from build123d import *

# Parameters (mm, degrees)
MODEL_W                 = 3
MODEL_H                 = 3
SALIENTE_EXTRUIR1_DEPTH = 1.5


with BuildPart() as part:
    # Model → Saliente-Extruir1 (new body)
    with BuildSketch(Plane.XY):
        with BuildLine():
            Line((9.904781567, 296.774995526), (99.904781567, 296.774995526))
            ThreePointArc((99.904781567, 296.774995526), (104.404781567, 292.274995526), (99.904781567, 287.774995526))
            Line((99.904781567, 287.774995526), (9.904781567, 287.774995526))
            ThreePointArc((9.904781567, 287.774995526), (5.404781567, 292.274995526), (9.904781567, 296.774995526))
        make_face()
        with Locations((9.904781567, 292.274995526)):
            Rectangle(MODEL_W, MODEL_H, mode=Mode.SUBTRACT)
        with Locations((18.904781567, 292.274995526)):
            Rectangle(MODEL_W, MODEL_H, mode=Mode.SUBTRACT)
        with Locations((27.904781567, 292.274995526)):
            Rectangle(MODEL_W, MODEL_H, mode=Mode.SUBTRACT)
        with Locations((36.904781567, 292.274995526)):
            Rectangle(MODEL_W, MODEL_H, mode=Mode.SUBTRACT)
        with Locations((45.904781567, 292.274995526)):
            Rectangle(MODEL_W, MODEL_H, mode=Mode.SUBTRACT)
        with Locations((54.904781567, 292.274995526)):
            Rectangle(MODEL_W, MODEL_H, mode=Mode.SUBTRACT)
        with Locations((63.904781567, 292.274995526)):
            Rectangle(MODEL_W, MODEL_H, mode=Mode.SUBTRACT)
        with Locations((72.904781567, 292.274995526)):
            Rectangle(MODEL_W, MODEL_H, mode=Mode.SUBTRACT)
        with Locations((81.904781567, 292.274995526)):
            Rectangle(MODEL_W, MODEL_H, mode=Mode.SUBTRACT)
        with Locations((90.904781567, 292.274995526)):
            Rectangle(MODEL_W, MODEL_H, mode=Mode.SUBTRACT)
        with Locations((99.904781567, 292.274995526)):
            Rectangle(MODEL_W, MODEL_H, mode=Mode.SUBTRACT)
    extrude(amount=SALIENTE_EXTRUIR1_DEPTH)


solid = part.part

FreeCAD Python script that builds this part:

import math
import FreeCAD as App
import Part
import Sketcher
from FreeCAD import Vector
Q = App.Units.Quantity


def add_polygon(sketch, points):
    """Adds a closed chain of lines whose ends are joined by coincident constraints."""
    first, n = sketch.GeometryCount, len(points)
    for a, b in zip(points, points[1:] + points[:1]):
        sketch.addGeometry(Part.LineSegment(App.Vector(*a, 0), App.Vector(*b, 0)), False)
    for i in range(n):
        sketch.addConstraint(Sketcher.Constraint("Coincident", first + i, 2, first + (i + 1) % n, 1))

doc = App.newDocument("Part")
params = doc.addObject("Spreadsheet::Sheet", "Params")
for row, (alias, value) in enumerate([
    ("sketch1_radius", "4.5 mm"),
    ("sketch1_width", "90 mm"),
    ("sketch1_width2", "3 mm"),
    ("pad1_length", "1.5 mm"),
], start=1):
    params.set(f"A{row}", alias)
    params.set(f"B{row}", "=" + value)
    params.setAlias(f"B{row}", alias)

body = doc.addObject("PartDesign::Body", "Body")

sketch1 = body.newObject("Sketcher::SketchObject", "Sketch")
sketch1.AttachmentSupport = (doc.getObject("XY_Plane"), [""])
sketch1.MapMode = "FlatFace"
sketch1.addGeometry(Part.LineSegment(Vector(99.9, 296.8, 0), Vector(9.9, 296.8, 0)), False)
sketch1.addGeometry(Part.ArcOfCircle(Part.Circle(Vector(9.9, 292.3, 0), Vector(0, 0, 1), 4.5), math.radians(90), math.radians(270)), False)
sketch1.addGeometry(Part.LineSegment(Vector(9.9, 287.8, 0), Vector(99.9, 287.8, 0)), False)
sketch1.addGeometry(Part.ArcOfCircle(Part.Circle(Vector(99.9, 292.3, 0), Vector(0, 0, 1), 4.5), math.radians(-90), math.radians(90)), False)
add_polygon(sketch1, [(98.4, 290.8), (98.4, 293.8), (101.4, 293.8), (101.4, 290.8)])
add_polygon(sketch1, [(89.4, 290.8), (89.4, 293.8), (92.4, 293.8), (92.4, 290.8)])
add_polygon(sketch1, [(80.4, 290.8), (80.4, 293.8), (83.4, 293.8), (83.4, 290.8)])
add_polygon(sketch1, [(71.4, 290.8), (71.4, 293.8), (74.4, 293.8), (74.4, 290.8)])
add_polygon(sketch1, [(62.4, 290.8), (62.4, 293.8), (65.4, 293.8), (65.4, 290.8)])
add_polygon(sketch1, [(53.4, 290.8), (53.4, 293.8), (56.4, 293.8), (56.4, 290.8)])
add_polygon(sketch1, [(44.4, 290.8), (44.4, 293.8), (47.4, 293.8), (47.4, 290.8)])
add_polygon(sketch1, [(35.4, 290.8), (35.4, 293.8), (38.4, 293.8), (38.4, 290.8)])
add_polygon(sketch1, [(26.4, 290.8), (26.4, 293.8), (29.4, 293.8), (29.4, 290.8)])
add_polygon(sketch1, [(17.4, 290.8), (17.4, 293.8), (20.4, 293.8), (20.4, 290.8)])
add_polygon(sketch1, [(8.4, 290.8), (8.4, 293.8), (11.4, 293.8), (11.4, 290.8)])
sketch1.addConstraint([
    Sketcher.Constraint("Tangent", 0, 2, 1, 1),
    Sketcher.Constraint("Tangent", 1, 2, 2, 1),
    Sketcher.Constraint("Tangent", 2, 2, 3, 1),
    Sketcher.Constraint("Tangent", 3, 2, 0, 1),
    Sketcher.Constraint("Horizontal", 0),
    Sketcher.Constraint("Horizontal", 2),
    Sketcher.Constraint("Vertical", 4),
    Sketcher.Constraint("Horizontal", 5),
    Sketcher.Constraint("Vertical", 6),
    Sketcher.Constraint("Horizontal", 7),
    Sketcher.Constraint("Vertical", 8),
    Sketcher.Constraint("Horizontal", 9),
    Sketcher.Constraint("Vertical", 10),
    Sketcher.Constraint("Horizontal", 11),
    Sketcher.Constraint("Vertical", 12),
    Sketcher.Constraint("Horizontal", 13),
    Sketcher.Constraint("Vertical", 14),
    Sketcher.Constraint("Horizontal", 15),
    Sketcher.Constraint("Vertical", 16),
    Sketcher.Constraint("Horizontal", 17),
    Sketcher.Constraint("Vertical", 18),
    Sketcher.Constraint("Horizontal", 19),
    Sketcher.Constraint("Vertical", 20),
    Sketcher.Constraint("Horizontal", 21),
    Sketcher.Constraint("Vertical", 22),
    Sketcher.Constraint("Horizontal", 23),
    Sketcher.Constraint("Vertical", 24),
    Sketcher.Constraint("Horizontal", 25),
    Sketcher.Constraint("Vertical", 26),
    Sketcher.Constraint("Horizontal", 27),
    Sketcher.Constraint("Vertical", 28),
    Sketcher.Constraint("Horizontal", 29),
    Sketcher.Constraint("Vertical", 30),
    Sketcher.Constraint("Horizontal", 31),
    Sketcher.Constraint("Vertical", 32),
    Sketcher.Constraint("Horizontal", 33),
    Sketcher.Constraint("Vertical", 34),
    Sketcher.Constraint("Horizontal", 35),
    Sketcher.Constraint("Vertical", 36),
    Sketcher.Constraint("Horizontal", 37),
    Sketcher.Constraint("Vertical", 38),
    Sketcher.Constraint("Horizontal", 39),
    Sketcher.Constraint("Vertical", 40),
    Sketcher.Constraint("Horizontal", 41),
    Sketcher.Constraint("Vertical", 42),
    Sketcher.Constraint("Horizontal", 43),
    Sketcher.Constraint("Vertical", 44),
    Sketcher.Constraint("Horizontal", 45),
    Sketcher.Constraint("Vertical", 46),
    Sketcher.Constraint("Horizontal", 47),
    Sketcher.Constraint("Horizontal", 5, 2, 8, 2),
    Sketcher.Constraint("Horizontal", 7, 2, 10, 2),
    Sketcher.Constraint("Horizontal", 9, 2, 12, 2),
    Sketcher.Constraint("Horizontal", 11, 2, 14, 2),
    Sketcher.Constraint("Horizontal", 13, 2, 16, 2),
    Sketcher.Constraint("Horizontal", 15, 2, 18, 2),
    Sketcher.Constraint("Horizontal", 17, 2, 20, 2),
    Sketcher.Constraint("Horizontal", 19, 2, 22, 2),
    Sketcher.Constraint("Horizontal", 21, 2, 24, 2),
    Sketcher.Constraint("Horizontal", 23, 2, 26, 2),
    Sketcher.Constraint("Horizontal", 25, 2, 28, 2),
    Sketcher.Constraint("Horizontal", 27, 2, 30, 2),
    Sketcher.Constraint("Horizontal", 29, 2, 32, 2),
    Sketcher.Constraint("Horizontal", 31, 2, 34, 2),
    Sketcher.Constraint("Horizontal", 33, 2, 36, 2),
    Sketcher.Constraint("Horizontal", 35, 2, 38, 2),
    Sketcher.Constraint("Horizontal", 37, 2, 40, 2),
    Sketcher.Constraint("Horizontal", 39, 2, 42, 2),
    Sketcher.Constraint("Horizontal", 41, 2, 44, 2),
    Sketcher.Constraint("Horizontal", 43, 2, 46, 2),
    Sketcher.Constraint("Equal", 7, 9),
    Sketcher.Constraint("Equal", 11, 13),
    Sketcher.Constraint("Equal", 15, 17),
    Sketcher.Constraint("Equal", 19, 21),
    Sketcher.Constraint("Equal", 23, 25),
    Sketcher.Constraint("Equal", 27, 29),
    Sketcher.Constraint("Equal", 31, 33),
    Sketcher.Constraint("Equal", 35, 37),
    Sketcher.Constraint("Equal", 39, 41),
    Sketcher.Constraint("Equal", 43, 45),
    Sketcher.Constraint("Equal", 47, 4),
    Sketcher.Constraint("Radius", 1, Q("4.5 mm")),
    Sketcher.Constraint("DistanceX", 0, 2, 0, 1, Q("90 mm")),
    Sketcher.Constraint("DistanceX", 5, 1, 5, 2, Q("3 mm")),
    Sketcher.Constraint("DistanceY", 4, 2, 3, 2, Q("3 mm")),
    Sketcher.Constraint("DistanceX", 8, 2, 4, 2, Q("9 mm")),
    Sketcher.Constraint("DistanceX", 12, 2, 8, 2, Q("9 mm")),
    Sketcher.Constraint("DistanceX", 16, 2, 12, 2, Q("9 mm")),
    Sketcher.Constraint("DistanceX", 20, 2, 16, 2, Q("9 mm")),
    Sketcher.Constraint("DistanceX", 24, 2, 20, 2, Q("9 mm")),
    Sketcher.Constraint("DistanceX", 28, 2, 24, 2, Q("9 mm")),
    Sketcher.Constraint("DistanceX", 32, 2, 28, 2, Q("9 mm")),
    Sketcher.Constraint("DistanceX", 36, 2, 32, 2, Q("9 mm")),
    Sketcher.Constraint("DistanceX", 40, 2, 36, 2, Q("9 mm")),
    Sketcher.Constraint("DistanceX", 44, 2, 40, 2, Q("9 mm")),
    Sketcher.Constraint("DistanceX", 4, 2, 3, 3, Q("1.5 mm")),
    Sketcher.Constraint("DistanceX", -1, 1, 1, 3, Q("9.904782 mm")),
    Sketcher.Constraint("DistanceY", -1, 1, 1, 3, Q("292.274996 mm")),
])
sketch1.setExpression("Constraints[125]", "Params.sketch1_radius")
sketch1.setExpression("Constraints[126]", "Params.sketch1_width")
sketch1.setExpression("Constraints[127]", "Params.sketch1_width2")
pad1 = body.newObject("PartDesign::Pad", "Pad")
pad1.Profile = sketch1
pad1.setExpression("Length", "Params.pad1_length")

doc.recompute()
